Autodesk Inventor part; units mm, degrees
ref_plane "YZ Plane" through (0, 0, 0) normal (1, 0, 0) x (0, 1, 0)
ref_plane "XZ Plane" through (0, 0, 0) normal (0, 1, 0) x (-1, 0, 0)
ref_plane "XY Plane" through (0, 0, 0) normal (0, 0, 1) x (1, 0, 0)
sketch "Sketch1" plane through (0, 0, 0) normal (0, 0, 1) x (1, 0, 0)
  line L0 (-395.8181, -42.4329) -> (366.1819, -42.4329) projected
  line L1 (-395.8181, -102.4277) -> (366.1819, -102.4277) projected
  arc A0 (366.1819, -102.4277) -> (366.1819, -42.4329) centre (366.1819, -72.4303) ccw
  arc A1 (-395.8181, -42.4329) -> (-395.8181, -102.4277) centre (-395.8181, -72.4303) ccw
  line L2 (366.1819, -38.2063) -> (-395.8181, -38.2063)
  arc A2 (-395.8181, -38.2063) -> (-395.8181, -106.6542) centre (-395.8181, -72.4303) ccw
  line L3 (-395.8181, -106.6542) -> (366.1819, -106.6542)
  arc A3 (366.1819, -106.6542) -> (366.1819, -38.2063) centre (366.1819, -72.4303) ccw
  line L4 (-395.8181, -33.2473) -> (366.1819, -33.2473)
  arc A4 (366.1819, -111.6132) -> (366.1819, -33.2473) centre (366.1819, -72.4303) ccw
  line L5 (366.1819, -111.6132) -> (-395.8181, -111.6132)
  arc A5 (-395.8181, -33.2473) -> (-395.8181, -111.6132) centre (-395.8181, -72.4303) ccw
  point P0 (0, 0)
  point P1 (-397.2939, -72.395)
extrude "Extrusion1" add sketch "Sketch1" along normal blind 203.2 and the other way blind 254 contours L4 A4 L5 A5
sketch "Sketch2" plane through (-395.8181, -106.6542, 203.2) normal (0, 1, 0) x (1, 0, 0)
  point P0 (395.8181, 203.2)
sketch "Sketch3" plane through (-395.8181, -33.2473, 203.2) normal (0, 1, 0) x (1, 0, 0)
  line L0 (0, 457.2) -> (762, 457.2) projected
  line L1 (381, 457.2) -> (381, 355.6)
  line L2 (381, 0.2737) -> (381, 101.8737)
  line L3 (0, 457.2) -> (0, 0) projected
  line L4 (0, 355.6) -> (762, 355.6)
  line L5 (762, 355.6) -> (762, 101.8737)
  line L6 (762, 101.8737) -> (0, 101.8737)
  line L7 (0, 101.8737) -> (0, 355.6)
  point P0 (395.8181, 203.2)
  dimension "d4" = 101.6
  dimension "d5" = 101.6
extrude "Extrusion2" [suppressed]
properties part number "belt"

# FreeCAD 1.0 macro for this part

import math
import FreeCAD as App
import Part
import Sketcher

V = App.Vector
Q = App.Units.Quantity

doc = App.newDocument("Part")
body = doc.addObject("PartDesign::Body", "Body")

# Sketch on XY plane
sketch1 = doc.addObject("Sketcher::SketchObject", "Sketch")
body.addObject(sketch1)
sketch1.AttachmentSupport = (doc.XY_Plane, [""])
sketch1.MapMode = "FlatFace"
sketch1.addGeometry([
    Part.LineSegment(V(366, -33, 0), V(-396, -33, 0)),  # 0
    Part.ArcOfCircle(Part.Circle(V(-396, -72, 0), V(0, 0, 1), 39), math.radians(90), math.radians(270)),  # 1
    Part.LineSegment(V(-396, -112, 0), V(366, -112, 0)),  # 2
    Part.ArcOfCircle(Part.Circle(V(366, -72, 0), V(0, 0, 1), 39), math.radians(-90), math.radians(90)),  # 3
    Part.LineSegment(V(-396, -38, 0), V(366, -38, 0)),  # 4
    Part.ArcOfCircle(Part.Circle(V(366, -72, 0), V(0, 0, 1), 34), math.radians(-90), math.radians(90)),  # 5
    Part.LineSegment(V(366, -107, 0), V(-396, -107, 0)),  # 6
    Part.ArcOfCircle(Part.Circle(V(-396, -72, 0), V(0, 0, 1), 34), math.radians(90), math.radians(270)),  # 7
], False)
sketch1.addConstraint([
    Sketcher.Constraint("Tangent", 0, 2, 1, 1),
    Sketcher.Constraint("Tangent", 1, 2, 2, 1),
    Sketcher.Constraint("Tangent", 2, 2, 3, 1),
    Sketcher.Constraint("Tangent", 3, 2, 0, 1),
    Sketcher.Constraint("Tangent", 4, 2, 5, 2),
    Sketcher.Constraint("Tangent", 5, 1, 6, 1),
    Sketcher.Constraint("Tangent", 6, 2, 7, 2),
    Sketcher.Constraint("Tangent", 7, 1, 4, 1),
    Sketcher.Constraint("Horizontal", 0),
    Sketcher.Constraint("Horizontal", 2),
    Sketcher.Constraint("Horizontal", 4),
    Sketcher.Constraint("Horizontal", 6),
    Sketcher.Constraint("Coincident", 5, 3, 3, 3),
    Sketcher.Constraint("Vertical", 7, 3, 0, 2),
    Sketcher.Constraint("DistanceX", 0, 2, 0, 1, Q("30 in")),
    Sketcher.Constraint("Radius", 5, Q("1.3474 in")),
    Sketcher.Constraint("Radius", 1, 39.183),
    Sketcher.Constraint("DistanceX", 1, 3, -1, 1, Q("15.5834 in")),
    Sketcher.Constraint("DistanceY", 1, 3, -1, 1, 72.4303),
])
pad1 = doc.addObject("PartDesign::Pad", "Pad")
body.addObject(pad1)
pad1.Profile = sketch1
pad1.Type = "TwoLengths"
pad1.Length = Q("8 in")
pad1.Length2 = Q("10 in")

doc.recompute()
